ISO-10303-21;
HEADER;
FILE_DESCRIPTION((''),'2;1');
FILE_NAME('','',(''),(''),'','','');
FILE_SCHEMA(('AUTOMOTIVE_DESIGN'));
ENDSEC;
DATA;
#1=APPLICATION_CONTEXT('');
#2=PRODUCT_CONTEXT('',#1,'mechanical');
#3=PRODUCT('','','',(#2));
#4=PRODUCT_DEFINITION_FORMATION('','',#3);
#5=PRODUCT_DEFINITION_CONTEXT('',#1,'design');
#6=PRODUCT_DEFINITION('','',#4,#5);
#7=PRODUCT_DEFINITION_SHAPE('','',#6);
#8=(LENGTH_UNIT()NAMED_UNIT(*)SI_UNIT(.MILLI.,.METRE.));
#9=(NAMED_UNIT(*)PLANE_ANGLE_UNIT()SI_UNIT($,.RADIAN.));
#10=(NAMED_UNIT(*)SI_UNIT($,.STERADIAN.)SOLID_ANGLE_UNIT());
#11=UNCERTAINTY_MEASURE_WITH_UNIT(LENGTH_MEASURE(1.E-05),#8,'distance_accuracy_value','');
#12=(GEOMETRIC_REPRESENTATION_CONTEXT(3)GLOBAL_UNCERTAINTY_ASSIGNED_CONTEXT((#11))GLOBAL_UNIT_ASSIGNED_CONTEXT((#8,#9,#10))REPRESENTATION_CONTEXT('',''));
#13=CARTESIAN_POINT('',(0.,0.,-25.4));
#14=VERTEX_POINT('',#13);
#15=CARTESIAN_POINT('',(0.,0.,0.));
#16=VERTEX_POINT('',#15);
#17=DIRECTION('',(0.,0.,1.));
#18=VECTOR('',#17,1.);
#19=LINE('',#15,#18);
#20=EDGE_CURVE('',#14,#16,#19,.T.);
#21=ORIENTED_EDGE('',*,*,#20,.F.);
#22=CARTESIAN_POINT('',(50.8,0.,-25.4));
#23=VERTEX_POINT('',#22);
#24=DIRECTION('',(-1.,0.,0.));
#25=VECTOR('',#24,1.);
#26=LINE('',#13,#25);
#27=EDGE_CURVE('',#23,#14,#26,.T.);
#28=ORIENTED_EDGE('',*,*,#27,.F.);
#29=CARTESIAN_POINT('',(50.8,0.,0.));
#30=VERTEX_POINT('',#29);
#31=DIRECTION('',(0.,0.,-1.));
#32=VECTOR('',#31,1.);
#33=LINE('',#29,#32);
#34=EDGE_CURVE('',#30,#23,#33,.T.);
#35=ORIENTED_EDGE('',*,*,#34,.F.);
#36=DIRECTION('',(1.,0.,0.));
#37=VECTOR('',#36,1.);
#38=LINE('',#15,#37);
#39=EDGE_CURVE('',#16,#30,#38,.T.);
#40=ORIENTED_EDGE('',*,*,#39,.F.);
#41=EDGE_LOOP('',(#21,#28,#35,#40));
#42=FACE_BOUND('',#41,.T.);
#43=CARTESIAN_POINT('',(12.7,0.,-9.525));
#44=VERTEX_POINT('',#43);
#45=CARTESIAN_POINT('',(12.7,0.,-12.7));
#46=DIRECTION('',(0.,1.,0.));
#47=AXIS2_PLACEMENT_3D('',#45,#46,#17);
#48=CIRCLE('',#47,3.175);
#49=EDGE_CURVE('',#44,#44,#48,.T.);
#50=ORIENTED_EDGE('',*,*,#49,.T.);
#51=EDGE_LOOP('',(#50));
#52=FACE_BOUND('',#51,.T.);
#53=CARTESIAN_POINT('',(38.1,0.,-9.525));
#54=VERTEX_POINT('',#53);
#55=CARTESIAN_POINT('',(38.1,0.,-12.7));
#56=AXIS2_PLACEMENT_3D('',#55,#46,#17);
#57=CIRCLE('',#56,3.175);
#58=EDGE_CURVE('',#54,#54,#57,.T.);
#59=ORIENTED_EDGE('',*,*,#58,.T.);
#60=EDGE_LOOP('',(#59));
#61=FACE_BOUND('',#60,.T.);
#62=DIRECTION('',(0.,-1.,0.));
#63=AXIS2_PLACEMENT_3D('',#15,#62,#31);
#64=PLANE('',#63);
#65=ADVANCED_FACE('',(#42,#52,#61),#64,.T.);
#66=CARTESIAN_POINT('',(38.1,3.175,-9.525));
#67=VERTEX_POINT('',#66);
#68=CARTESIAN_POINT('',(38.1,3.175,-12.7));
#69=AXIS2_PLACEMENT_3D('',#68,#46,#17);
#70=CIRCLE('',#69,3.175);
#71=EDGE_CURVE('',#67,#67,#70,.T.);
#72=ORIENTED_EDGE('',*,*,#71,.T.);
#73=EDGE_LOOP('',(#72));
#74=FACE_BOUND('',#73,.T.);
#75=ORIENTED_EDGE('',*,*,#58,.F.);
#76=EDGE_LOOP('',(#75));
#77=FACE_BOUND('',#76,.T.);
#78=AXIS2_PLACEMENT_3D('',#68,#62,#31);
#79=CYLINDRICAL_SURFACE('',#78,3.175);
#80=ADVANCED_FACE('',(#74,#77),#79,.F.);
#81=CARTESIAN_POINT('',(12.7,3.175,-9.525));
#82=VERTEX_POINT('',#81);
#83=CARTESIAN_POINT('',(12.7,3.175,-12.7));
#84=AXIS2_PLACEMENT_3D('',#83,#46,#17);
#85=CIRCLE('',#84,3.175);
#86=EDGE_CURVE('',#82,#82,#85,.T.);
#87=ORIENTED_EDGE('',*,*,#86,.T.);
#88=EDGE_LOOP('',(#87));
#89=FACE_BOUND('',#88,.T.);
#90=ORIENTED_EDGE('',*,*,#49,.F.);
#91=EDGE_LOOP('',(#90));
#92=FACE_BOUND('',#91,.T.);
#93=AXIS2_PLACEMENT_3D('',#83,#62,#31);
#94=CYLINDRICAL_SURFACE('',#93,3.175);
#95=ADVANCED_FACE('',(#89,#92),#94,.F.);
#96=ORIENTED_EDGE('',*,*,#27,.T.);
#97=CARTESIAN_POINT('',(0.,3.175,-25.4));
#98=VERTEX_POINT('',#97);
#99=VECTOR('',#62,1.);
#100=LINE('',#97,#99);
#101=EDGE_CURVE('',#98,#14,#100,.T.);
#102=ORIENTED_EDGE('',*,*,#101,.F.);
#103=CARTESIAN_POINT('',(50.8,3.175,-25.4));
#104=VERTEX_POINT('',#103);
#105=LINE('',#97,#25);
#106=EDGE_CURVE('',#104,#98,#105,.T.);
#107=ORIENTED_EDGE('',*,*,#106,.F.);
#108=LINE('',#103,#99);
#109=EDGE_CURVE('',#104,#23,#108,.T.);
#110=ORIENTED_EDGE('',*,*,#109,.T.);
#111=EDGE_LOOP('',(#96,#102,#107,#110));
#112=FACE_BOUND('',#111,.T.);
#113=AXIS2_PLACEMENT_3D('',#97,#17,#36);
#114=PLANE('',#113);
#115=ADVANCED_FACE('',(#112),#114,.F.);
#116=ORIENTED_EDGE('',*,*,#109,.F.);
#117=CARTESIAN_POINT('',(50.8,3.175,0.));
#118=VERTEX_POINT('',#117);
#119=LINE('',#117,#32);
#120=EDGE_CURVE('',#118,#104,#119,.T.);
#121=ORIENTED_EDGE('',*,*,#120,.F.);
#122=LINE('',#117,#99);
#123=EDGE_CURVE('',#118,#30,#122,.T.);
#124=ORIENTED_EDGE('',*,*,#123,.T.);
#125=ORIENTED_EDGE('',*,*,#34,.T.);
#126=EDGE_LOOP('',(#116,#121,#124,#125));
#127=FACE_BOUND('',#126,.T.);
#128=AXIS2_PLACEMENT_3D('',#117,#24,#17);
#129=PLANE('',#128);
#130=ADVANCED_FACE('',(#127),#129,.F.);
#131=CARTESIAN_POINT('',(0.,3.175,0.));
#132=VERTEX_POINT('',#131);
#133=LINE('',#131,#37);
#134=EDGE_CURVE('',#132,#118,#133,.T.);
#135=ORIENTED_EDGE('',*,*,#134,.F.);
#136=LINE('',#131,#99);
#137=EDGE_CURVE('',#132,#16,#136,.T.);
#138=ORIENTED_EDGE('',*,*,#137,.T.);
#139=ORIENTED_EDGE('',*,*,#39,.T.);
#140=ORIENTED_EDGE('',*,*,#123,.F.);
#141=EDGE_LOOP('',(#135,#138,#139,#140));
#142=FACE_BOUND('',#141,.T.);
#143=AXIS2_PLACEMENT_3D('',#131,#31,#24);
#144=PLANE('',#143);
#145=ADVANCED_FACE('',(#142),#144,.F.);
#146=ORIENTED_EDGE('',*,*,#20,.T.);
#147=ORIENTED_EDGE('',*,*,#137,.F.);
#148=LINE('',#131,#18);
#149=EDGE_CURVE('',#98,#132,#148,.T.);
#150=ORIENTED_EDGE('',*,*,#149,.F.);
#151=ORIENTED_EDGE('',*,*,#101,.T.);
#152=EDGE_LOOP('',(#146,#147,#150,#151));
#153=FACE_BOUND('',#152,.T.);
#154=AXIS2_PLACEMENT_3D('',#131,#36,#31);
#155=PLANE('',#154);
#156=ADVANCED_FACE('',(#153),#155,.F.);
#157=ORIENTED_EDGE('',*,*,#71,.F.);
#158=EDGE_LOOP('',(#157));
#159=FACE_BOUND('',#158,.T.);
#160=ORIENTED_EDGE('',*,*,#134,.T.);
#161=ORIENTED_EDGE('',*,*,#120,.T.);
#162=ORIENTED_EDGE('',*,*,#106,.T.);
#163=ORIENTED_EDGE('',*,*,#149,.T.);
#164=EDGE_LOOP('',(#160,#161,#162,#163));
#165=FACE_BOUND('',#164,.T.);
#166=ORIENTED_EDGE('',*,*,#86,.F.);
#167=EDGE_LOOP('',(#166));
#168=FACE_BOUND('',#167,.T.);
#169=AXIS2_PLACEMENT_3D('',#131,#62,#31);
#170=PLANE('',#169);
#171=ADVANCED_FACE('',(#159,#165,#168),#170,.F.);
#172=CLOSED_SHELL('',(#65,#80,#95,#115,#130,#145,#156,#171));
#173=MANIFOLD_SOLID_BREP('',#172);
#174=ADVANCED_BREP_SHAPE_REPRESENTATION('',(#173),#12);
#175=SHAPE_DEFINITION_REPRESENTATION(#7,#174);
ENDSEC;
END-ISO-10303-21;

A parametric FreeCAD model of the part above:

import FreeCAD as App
import Part
import Sketcher
from FreeCAD import Vector
Q = App.Units.Quantity


def add_polygon(sketch, points):
    """Adds a closed chain of lines whose ends are joined by coincident constraints."""
    first, n = sketch.GeometryCount, len(points)
    for a, b in zip(points, points[1:] + points[:1]):
        sketch.addGeometry(Part.LineSegment(App.Vector(*a, 0), App.Vector(*b, 0)), False)
    for i in range(n):
        sketch.addConstraint(Sketcher.Constraint("Coincident", first + i, 2, first + (i + 1) % n, 1))

doc = App.newDocument("Part")
params = doc.addObject("Spreadsheet::Sheet", "Params")
for row, (alias, value) in enumerate([
    ("sketch1_diameter", "0.25 in"),
    ("sketch1_width", "2 in"),
    ("sketch1_height", "1 in"),
    ("pad1_length", "0.125 in"),
], start=1):
    params.set(f"A{row}", alias)
    params.set(f"B{row}", "=" + value)
    params.setAlias(f"B{row}", alias)

body = doc.addObject("PartDesign::Body", "Body")

# Sketch on XZ plane
sketch1 = doc.addObject("Sketcher::SketchObject", "Sketch")
body.addObject(sketch1)
sketch1.AttachmentSupport = (doc.XZ_Plane, [""])
sketch1.MapMode = "FlatFace"
add_polygon(sketch1, [(0, -25.4), (0, 0), (50.8, 0), (50.8, -25.4)])  # lines 0-3
sketch1.addGeometry(Part.Circle(Vector(12.7, -12.7, 0), Vector(0, 0, 1), 3.2), False)  # 4
sketch1.addGeometry(Part.Circle(Vector(38.1, -12.7, 0), Vector(0, 0, 1), 3.2), False)  # 5
sketch1.addConstraint(Sketcher.Constraint("Vertical", 0))
sketch1.addConstraint(Sketcher.Constraint("Horizontal", 1))
sketch1.addConstraint(Sketcher.Constraint("Vertical", 2))
sketch1.addConstraint(Sketcher.Constraint("Horizontal", 3))
sketch1.addConstraint(Sketcher.Constraint("Coincident", 0, 2, -1, 1))
sketch1.addConstraint(Sketcher.Constraint("Equal", 4, 5))
sketch1.addConstraint(Sketcher.Constraint("Horizontal", 4, 3, 5, 3))
sketch1.addConstraint(Sketcher.Constraint("Diameter", 4, Q("0.25 in")))
sketch1.addConstraint(Sketcher.Constraint("DistanceX", 1, 1, 1, 2, Q("2 in")))
sketch1.addConstraint(Sketcher.Constraint("DistanceY", 0, 1, 0, 2, Q("1 in")))
sketch1.addConstraint(Sketcher.Constraint("DistanceX", 4, 3, 5, 3, Q("1 in")))
sketch1.addConstraint(Sketcher.Constraint("DistanceX", -1, 1, 4, 3, Q("0.5 in")))
sketch1.addConstraint(Sketcher.Constraint("DistanceY", 4, 3, -1, 1, Q("0.5 in")))
sketch1.setExpression("Constraints[11]", "Params.sketch1_diameter")
sketch1.setExpression("Constraints[12]", "Params.sketch1_width")
sketch1.setExpression("Constraints[13]", "Params.sketch1_height")
pad1 = doc.addObject("PartDesign::Pad", "Pad")
body.addObject(pad1)
pad1.Profile = sketch1
pad1.setExpression("Length", "Params.pad1_length")
pad1.Reversed = True

doc.recompute()
